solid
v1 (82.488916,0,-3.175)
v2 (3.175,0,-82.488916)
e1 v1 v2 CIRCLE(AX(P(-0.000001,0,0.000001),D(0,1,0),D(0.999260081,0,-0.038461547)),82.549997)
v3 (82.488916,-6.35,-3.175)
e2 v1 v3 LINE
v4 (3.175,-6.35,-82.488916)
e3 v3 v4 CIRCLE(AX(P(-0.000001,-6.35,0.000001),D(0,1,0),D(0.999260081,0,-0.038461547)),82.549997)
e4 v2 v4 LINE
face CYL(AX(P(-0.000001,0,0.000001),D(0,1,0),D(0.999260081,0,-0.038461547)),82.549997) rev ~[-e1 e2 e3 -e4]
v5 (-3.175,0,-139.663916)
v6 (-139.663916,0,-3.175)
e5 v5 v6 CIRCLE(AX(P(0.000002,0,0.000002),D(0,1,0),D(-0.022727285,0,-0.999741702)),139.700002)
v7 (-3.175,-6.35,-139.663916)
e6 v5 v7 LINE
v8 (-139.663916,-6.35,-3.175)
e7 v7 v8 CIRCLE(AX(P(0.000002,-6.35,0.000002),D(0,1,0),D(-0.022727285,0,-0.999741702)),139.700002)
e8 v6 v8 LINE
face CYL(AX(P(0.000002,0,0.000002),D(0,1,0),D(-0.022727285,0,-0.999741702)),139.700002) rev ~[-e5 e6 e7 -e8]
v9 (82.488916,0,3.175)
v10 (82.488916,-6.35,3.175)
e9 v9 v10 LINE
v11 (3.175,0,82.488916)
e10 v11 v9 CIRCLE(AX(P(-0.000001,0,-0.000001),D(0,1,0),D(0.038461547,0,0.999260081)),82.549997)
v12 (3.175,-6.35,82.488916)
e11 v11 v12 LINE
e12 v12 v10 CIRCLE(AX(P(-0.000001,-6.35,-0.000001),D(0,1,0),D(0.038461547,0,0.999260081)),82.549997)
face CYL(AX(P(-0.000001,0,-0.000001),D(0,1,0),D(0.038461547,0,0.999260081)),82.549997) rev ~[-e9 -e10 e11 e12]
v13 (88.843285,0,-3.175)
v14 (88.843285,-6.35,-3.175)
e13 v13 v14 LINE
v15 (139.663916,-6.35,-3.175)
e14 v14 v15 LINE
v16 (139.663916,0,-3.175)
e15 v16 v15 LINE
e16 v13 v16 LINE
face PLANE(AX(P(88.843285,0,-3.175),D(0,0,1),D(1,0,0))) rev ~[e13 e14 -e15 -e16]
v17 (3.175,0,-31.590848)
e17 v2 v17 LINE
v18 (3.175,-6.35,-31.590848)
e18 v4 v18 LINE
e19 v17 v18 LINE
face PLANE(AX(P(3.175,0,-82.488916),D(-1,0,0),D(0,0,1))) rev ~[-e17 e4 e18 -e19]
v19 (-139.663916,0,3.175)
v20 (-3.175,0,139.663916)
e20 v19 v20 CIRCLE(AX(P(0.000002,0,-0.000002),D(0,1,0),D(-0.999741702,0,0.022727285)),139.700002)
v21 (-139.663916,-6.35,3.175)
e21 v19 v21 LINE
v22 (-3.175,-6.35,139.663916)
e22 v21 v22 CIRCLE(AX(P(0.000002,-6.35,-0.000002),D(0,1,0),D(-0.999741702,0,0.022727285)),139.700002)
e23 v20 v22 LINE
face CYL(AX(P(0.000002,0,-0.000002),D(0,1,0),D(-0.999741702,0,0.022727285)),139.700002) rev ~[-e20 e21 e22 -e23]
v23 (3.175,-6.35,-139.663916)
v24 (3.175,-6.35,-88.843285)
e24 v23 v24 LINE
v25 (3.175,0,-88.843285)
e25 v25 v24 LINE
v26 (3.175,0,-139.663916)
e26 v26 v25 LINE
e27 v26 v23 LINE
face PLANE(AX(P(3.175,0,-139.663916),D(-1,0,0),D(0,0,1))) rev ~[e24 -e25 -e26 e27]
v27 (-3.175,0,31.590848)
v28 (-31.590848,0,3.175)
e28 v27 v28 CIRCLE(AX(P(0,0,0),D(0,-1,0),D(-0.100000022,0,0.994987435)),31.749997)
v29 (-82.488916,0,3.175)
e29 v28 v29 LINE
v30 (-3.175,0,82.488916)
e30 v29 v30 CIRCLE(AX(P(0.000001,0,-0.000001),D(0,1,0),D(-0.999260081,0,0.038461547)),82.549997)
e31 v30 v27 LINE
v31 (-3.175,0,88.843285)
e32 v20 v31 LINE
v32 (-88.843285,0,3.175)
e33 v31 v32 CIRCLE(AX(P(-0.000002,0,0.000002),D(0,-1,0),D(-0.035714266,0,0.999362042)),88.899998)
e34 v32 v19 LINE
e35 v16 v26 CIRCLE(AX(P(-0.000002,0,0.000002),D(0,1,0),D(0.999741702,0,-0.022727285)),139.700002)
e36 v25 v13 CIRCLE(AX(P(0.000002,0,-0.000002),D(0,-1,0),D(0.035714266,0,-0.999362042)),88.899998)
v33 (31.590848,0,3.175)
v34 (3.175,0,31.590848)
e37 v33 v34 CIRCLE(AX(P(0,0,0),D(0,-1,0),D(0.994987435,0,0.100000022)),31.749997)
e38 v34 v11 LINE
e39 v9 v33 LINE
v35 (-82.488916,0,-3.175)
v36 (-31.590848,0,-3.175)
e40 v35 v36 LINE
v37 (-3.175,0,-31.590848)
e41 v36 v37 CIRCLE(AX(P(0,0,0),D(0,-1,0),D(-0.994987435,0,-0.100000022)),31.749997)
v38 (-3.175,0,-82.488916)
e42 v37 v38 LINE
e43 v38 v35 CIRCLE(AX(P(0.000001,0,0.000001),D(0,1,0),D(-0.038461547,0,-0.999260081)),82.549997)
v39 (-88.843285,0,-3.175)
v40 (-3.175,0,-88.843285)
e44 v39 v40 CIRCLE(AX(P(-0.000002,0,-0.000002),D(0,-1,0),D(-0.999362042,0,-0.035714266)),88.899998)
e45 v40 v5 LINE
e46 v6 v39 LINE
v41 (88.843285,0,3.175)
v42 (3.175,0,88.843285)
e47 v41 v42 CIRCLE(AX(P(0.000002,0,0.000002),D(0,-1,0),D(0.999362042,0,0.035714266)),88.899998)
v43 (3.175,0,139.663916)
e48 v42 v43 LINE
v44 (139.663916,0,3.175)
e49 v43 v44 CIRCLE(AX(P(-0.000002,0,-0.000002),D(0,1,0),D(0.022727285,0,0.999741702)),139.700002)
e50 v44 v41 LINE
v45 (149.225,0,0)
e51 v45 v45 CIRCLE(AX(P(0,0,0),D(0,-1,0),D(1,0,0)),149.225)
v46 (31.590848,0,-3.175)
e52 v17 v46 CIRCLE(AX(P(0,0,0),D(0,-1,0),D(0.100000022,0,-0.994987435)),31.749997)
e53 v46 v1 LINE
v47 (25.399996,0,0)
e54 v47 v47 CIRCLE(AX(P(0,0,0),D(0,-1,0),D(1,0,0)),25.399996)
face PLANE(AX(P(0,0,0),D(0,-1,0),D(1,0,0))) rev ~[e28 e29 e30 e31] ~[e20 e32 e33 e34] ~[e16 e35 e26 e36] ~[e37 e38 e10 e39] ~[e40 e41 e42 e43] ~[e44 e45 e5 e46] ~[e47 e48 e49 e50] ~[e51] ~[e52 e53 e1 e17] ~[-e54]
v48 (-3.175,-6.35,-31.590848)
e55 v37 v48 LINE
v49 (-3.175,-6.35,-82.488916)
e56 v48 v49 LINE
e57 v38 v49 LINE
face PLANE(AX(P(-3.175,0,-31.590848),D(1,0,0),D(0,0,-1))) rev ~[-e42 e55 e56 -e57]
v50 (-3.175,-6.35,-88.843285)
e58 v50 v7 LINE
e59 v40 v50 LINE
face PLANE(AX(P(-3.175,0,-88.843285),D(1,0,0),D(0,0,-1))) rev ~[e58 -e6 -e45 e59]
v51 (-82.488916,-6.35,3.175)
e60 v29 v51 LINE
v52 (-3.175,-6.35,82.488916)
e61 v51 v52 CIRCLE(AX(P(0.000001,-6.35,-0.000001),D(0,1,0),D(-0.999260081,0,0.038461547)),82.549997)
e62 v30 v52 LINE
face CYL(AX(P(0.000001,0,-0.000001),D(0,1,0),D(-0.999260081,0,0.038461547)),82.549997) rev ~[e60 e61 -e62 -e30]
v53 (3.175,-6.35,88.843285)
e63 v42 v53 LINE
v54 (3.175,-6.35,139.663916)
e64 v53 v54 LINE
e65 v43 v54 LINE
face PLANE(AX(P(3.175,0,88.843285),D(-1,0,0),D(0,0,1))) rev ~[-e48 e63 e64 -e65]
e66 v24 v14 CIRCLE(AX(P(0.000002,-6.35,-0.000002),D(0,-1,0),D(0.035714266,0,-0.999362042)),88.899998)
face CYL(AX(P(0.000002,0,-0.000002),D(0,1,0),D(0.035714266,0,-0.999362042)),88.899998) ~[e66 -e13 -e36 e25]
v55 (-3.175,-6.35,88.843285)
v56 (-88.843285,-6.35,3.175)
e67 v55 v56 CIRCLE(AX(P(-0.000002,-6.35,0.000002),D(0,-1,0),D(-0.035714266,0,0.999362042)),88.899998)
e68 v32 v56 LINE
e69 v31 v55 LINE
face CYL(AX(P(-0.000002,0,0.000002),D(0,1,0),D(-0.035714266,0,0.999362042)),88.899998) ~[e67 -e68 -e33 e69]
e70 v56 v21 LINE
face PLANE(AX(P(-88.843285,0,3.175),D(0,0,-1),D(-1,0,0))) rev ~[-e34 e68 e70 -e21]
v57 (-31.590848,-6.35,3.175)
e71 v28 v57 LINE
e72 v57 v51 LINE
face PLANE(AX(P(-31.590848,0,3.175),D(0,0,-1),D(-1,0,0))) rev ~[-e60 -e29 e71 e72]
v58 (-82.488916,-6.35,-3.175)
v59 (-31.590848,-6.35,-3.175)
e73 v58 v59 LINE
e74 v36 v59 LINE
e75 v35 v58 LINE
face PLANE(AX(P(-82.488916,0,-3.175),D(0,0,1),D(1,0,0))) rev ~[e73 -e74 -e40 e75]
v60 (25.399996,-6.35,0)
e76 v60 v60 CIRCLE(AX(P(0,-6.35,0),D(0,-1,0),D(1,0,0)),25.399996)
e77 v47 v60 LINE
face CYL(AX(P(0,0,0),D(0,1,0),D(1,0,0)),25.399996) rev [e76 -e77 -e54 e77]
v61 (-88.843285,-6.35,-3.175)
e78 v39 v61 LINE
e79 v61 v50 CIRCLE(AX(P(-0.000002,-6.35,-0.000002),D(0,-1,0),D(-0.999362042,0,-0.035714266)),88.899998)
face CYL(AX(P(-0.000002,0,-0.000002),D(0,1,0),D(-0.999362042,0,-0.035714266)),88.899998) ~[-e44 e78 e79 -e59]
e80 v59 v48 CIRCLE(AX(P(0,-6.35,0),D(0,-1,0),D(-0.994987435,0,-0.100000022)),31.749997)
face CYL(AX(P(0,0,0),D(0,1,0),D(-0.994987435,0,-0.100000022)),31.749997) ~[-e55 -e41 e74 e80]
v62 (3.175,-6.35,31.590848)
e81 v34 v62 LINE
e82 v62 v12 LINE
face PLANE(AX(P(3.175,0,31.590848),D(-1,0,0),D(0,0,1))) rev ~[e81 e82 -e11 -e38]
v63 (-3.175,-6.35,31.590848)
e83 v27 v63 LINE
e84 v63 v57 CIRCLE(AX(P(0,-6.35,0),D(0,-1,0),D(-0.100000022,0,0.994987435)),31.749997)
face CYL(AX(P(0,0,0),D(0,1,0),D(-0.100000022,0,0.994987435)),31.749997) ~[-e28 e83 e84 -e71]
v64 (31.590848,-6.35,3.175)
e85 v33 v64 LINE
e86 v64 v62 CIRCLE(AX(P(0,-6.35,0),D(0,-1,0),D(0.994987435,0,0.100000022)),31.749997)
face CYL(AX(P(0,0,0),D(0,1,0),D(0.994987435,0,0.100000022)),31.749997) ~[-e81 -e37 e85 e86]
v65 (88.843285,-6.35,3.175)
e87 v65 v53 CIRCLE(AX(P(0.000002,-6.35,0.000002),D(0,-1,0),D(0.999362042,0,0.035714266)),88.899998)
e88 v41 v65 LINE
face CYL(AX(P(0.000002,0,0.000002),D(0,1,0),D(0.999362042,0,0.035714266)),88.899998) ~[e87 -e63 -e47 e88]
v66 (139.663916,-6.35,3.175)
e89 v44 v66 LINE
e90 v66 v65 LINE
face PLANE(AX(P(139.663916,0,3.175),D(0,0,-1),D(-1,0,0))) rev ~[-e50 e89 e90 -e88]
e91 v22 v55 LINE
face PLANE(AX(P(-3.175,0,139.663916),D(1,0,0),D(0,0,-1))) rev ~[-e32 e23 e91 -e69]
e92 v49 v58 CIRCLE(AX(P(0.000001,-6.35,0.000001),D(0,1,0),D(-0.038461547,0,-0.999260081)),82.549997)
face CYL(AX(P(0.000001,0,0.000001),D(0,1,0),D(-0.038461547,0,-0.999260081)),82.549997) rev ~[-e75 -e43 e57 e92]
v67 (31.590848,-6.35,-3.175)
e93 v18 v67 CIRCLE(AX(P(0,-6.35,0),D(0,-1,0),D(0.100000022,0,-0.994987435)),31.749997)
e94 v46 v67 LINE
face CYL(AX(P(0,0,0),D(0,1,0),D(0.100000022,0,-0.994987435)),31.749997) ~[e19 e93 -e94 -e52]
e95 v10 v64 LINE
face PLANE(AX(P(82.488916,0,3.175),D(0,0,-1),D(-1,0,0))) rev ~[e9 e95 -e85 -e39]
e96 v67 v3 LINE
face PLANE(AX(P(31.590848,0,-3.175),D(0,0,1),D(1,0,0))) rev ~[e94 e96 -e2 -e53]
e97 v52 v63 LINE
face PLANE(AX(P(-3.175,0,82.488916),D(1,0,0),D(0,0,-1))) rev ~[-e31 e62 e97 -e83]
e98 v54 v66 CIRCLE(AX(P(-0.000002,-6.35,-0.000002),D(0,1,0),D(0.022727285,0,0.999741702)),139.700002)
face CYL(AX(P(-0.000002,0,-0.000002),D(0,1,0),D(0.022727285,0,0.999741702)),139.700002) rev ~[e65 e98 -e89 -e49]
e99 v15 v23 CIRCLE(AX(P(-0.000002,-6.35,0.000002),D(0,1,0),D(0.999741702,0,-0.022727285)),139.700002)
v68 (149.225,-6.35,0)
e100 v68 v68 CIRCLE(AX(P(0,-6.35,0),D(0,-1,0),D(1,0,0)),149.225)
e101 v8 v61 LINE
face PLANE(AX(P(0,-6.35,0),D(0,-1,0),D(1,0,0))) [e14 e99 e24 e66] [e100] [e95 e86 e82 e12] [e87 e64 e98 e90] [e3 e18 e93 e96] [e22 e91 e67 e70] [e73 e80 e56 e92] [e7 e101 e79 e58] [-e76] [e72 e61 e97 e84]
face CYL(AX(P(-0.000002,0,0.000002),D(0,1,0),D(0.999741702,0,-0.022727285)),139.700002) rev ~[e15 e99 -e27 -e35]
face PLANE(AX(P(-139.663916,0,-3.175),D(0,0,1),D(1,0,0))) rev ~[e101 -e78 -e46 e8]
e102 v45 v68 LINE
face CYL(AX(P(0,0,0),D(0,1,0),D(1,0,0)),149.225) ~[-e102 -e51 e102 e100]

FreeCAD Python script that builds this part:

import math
import FreeCAD as App
import Part
import Sketcher

V = App.Vector
Q = App.Units.Quantity

doc = App.newDocument("Part")
body = doc.addObject("PartDesign::Body", "Body")

# Sketch on XZ plane
sketch1 = doc.addObject("Sketcher::SketchObject", "Sketch")
body.addObject(sketch1)
sketch1.AttachmentSupport = (doc.XZ_Plane, [""])
sketch1.MapMode = "FlatFace"
sketch1.addGeometry(Part.Circle(V(0, 0, 0), V(0, 0, 1), 149), False)
sketch1.addGeometry(Part.LineSegment(V(-3, -89, 0), V(-3, -140, 0)), False)
sketch1.addGeometry(Part.ArcOfCircle(Part.Circle(V(0, 0, 0), V(0, 0, 1), 140), math.radians(-179), math.radians(-91)), False)
sketch1.addGeometry(Part.LineSegment(V(-140, -3, 0), V(-89, -3, 0)), False)
sketch1.addGeometry(Part.ArcOfCircle(Part.Circle(V(0, 0, 0), V(0, 0, 1), 89), math.radians(-178), math.radians(-92)), False)
sketch1.addGeometry(Part.LineSegment(V(-3, -32, 0), V(-3, -82, 0)), False)
sketch1.addGeometry(Part.ArcOfCircle(Part.Circle(V(0, 0, 0), V(0, 0, 1), 83), math.radians(-178), math.radians(-92)), False)
sketch1.addGeometry(Part.LineSegment(V(-82, -3, 0), V(-32, -3, 0)), False)
sketch1.addGeometry(Part.ArcOfCircle(Part.Circle(V(0, 0, 0), V(0, 0, 1), 32), math.radians(-174), math.radians(-96)), False)
sketch1.addGeometry(Part.ArcOfCircle(Part.Circle(V(0, 0, 0), V(0, 0, 1), 140), math.radians(-89), math.radians(-1)), False)
sketch1.addGeometry(Part.LineSegment(V(3, -140, 0), V(3, -89, 0)), False)
sketch1.addGeometry(Part.ArcOfCircle(Part.Circle(V(0, 0, 0), V(0, 0, 1), 89), math.radians(-88), math.radians(-2)), False)
sketch1.addGeometry(Part.LineSegment(V(89, -3, 0), V(140, -3, 0)), False)
sketch1.addGeometry(Part.ArcOfCircle(Part.Circle(V(0, 0, 0), V(0, 0, 1), 83), math.radians(-88), math.radians(-2)), False)
sketch1.addGeometry(Part.LineSegment(V(3, -82, 0), V(3, -32, 0)), False)
sketch1.addGeometry(Part.ArcOfCircle(Part.Circle(V(0, 0, 0), V(0, 0, 1), 32), math.radians(-84), math.radians(-6)), False)
sketch1.addGeometry(Part.LineSegment(V(32, -3, 0), V(82, -3, 0)), False)
sketch1.addGeometry(Part.ArcOfCircle(Part.Circle(V(0, 0, 0), V(0, 0, 1), 32), math.radians(96), math.radians(174)), False)
sketch1.addGeometry(Part.LineSegment(V(-32, 3, 0), V(-82, 3, 0)), False)
sketch1.addGeometry(Part.ArcOfCircle(Part.Circle(V(0, 0, 0), V(0, 0, 1), 83), math.radians(92), math.radians(178)), False)
sketch1.addGeometry(Part.LineSegment(V(-3, 82, 0), V(-3, 32, 0)), False)
sketch1.addGeometry(Part.LineSegment(V(-89, 3, 0), V(-140, 3, 0)), False)
sketch1.addGeometry(Part.ArcOfCircle(Part.Circle(V(0, 0, 0), V(0, 0, 1), 140), math.radians(91), math.radians(179)), False)
sketch1.addGeometry(Part.LineSegment(V(-3, 140, 0), V(-3, 89, 0)), False)
sketch1.addGeometry(Part.ArcOfCircle(Part.Circle(V(0, 0, 0), V(0, 0, 1), 89), math.radians(92), math.radians(178)), False)
sketch1.addGeometry(Part.Circle(V(0, 0, 0), V(0, 0, 1), 25), False)
sketch1.addGeometry(Part.ArcOfCircle(Part.Circle(V(0, 0, 0), V(0, 0, 1), 32), math.radians(6), math.radians(84)), False)
sketch1.addGeometry(Part.LineSegment(V(3, 32, 0), V(3, 82, 0)), False)
sketch1.addGeometry(Part.ArcOfCircle(Part.Circle(V(0, 0, 0), V(0, 0, 1), 83), math.radians(2), math.radians(88)), False)
sketch1.addGeometry(Part.LineSegment(V(82, 3, 0), V(32, 3, 0)), False)
sketch1.addGeometry(Part.LineSegment(V(3, 89, 0), V(3, 140, 0)), False)
sketch1.addGeometry(Part.ArcOfCircle(Part.Circle(V(0, 0, 0), V(0, 0, 1), 140), math.radians(1), math.radians(89)), False)
sketch1.addGeometry(Part.LineSegment(V(140, 3, 0), V(89, 3, 0)), False)
sketch1.addGeometry(Part.ArcOfCircle(Part.Circle(V(0, 0, 0), V(0, 0, 1), 89), math.radians(2), math.radians(88)), False)
sketch1.addConstraint(Sketcher.Constraint("Coincident", 1, 2, 2, 2))
sketch1.addConstraint(Sketcher.Constraint("Coincident", 2, 1, 3, 1))
sketch1.addConstraint(Sketcher.Constraint("Coincident", 3, 2, 4, 1))
sketch1.addConstraint(Sketcher.Constraint("Coincident", 4, 2, 1, 1))
sketch1.addConstraint(Sketcher.Constraint("Coincident", 5, 2, 6, 2))
sketch1.addConstraint(Sketcher.Constraint("Coincident", 6, 1, 7, 1))
sketch1.addConstraint(Sketcher.Constraint("Coincident", 7, 2, 8, 1))
sketch1.addConstraint(Sketcher.Constraint("Coincident", 8, 2, 5, 1))
sketch1.addConstraint(Sketcher.Constraint("Coincident", 9, 1, 10, 1))
sketch1.addConstraint(Sketcher.Constraint("Coincident", 10, 2, 11, 1))
sketch1.addConstraint(Sketcher.Constraint("Coincident", 11, 2, 12, 1))
sketch1.addConstraint(Sketcher.Constraint("Coincident", 12, 2, 9, 2))
sketch1.addConstraint(Sketcher.Constraint("Coincident", 13, 1, 14, 1))
sketch1.addConstraint(Sketcher.Constraint("Coincident", 14, 2, 15, 1))
sketch1.addConstraint(Sketcher.Constraint("Coincident", 15, 2, 16, 1))
sketch1.addConstraint(Sketcher.Constraint("Coincident", 16, 2, 13, 2))
sketch1.addConstraint(Sketcher.Constraint("Coincident", 17, 2, 18, 1))
sketch1.addConstraint(Sketcher.Constraint("Coincident", 18, 2, 19, 2))
sketch1.addConstraint(Sketcher.Constraint("Coincident", 19, 1, 20, 1))
sketch1.addConstraint(Sketcher.Constraint("Coincident", 20, 2, 17, 1))
sketch1.addConstraint(Sketcher.Constraint("Coincident", 21, 2, 22, 2))
sketch1.addConstraint(Sketcher.Constraint("Coincident", 22, 1, 23, 1))
sketch1.addConstraint(Sketcher.Constraint("Coincident", 23, 2, 24, 1))
sketch1.addConstraint(Sketcher.Constraint("Coincident", 24, 2, 21, 1))
sketch1.addConstraint(Sketcher.Constraint("Coincident", 26, 2, 27, 1))
sketch1.addConstraint(Sketcher.Constraint("Coincident", 27, 2, 28, 2))
sketch1.addConstraint(Sketcher.Constraint("Coincident", 28, 1, 29, 1))
sketch1.addConstraint(Sketcher.Constraint("Coincident", 29, 2, 26, 1))
sketch1.addConstraint(Sketcher.Constraint("Coincident", 30, 2, 31, 2))
sketch1.addConstraint(Sketcher.Constraint("Coincident", 31, 1, 32, 1))
sketch1.addConstraint(Sketcher.Constraint("Coincident", 32, 2, 33, 1))
sketch1.addConstraint(Sketcher.Constraint("Coincident", 33, 2, 30, 1))
sketch1.addConstraint(Sketcher.Constraint("Vertical", 1))
sketch1.addConstraint(Sketcher.Constraint("Horizontal", 3))
sketch1.addConstraint(Sketcher.Constraint("Vertical", 5))
sketch1.addConstraint(Sketcher.Constraint("Horizontal", 7))
sketch1.addConstraint(Sketcher.Constraint("Vertical", 10))
sketch1.addConstraint(Sketcher.Constraint("Horizontal", 12))
sketch1.addConstraint(Sketcher.Constraint("Vertical", 14))
sketch1.addConstraint(Sketcher.Constraint("Horizontal", 16))
sketch1.addConstraint(Sketcher.Constraint("Horizontal", 18))
sketch1.addConstraint(Sketcher.Constraint("Vertical", 20))
sketch1.addConstraint(Sketcher.Constraint("Horizontal", 21))
sketch1.addConstraint(Sketcher.Constraint("Vertical", 23))
sketch1.addConstraint(Sketcher.Constraint("Vertical", 27))
sketch1.addConstraint(Sketcher.Constraint("Horizontal", 29))
sketch1.addConstraint(Sketcher.Constraint("Vertical", 30))
sketch1.addConstraint(Sketcher.Constraint("Horizontal", 32))
sketch1.addConstraint(Sketcher.Constraint("Coincident", 0, 3, -1, 1))
sketch1.addConstraint(Sketcher.Constraint("Coincident", 2, 3, -1, 1))
sketch1.addConstraint(Sketcher.Constraint("Coincident", 4, 3, -1, 1))
sketch1.addConstraint(Sketcher.Constraint("Coincident", 6, 3, -1, 1))
sketch1.addConstraint(Sketcher.Constraint("Coincident", 8, 3, -1, 1))
sketch1.addConstraint(Sketcher.Constraint("Coincident", 9, 3, -1, 1))
sketch1.addConstraint(Sketcher.Constraint("Coincident", 11, 3, -1, 1))
sketch1.addConstraint(Sketcher.Constraint("Coincident", 13, 3, -1, 1))
sketch1.addConstraint(Sketcher.Constraint("Coincident", 15, 3, -1, 1))
sketch1.addConstraint(Sketcher.Constraint("Coincident", 17, 3, -1, 1))
sketch1.addConstraint(Sketcher.Constraint("Coincident", 19, 3, -1, 1))
sketch1.addConstraint(Sketcher.Constraint("Coincident", 22, 3, -1, 1))
sketch1.addConstraint(Sketcher.Constraint("Coincident", 24, 3, -1, 1))
sketch1.addConstraint(Sketcher.Constraint("Coincident", 25, 3, -1, 1))
sketch1.addConstraint(Sketcher.Constraint("Coincident", 26, 3, -1, 1))
sketch1.addConstraint(Sketcher.Constraint("Coincident", 28, 3, -1, 1))
sketch1.addConstraint(Sketcher.Constraint("Coincident", 31, 3, -1, 1))
sketch1.addConstraint(Sketcher.Constraint("Coincident", 33, 3, -1, 1))
sketch1.addConstraint(Sketcher.Constraint("Equal", 2, 9))
sketch1.addConstraint(Sketcher.Constraint("Equal", 4, 11))
sketch1.addConstraint(Sketcher.Constraint("Equal", 6, 13))
sketch1.addConstraint(Sketcher.Constraint("Equal", 8, 15))
sketch1.addConstraint(Sketcher.Constraint("Equal", 15, 17))
sketch1.addConstraint(Sketcher.Constraint("Equal", 13, 19))
sketch1.addConstraint(Sketcher.Constraint("Equal", 9, 22))
sketch1.addConstraint(Sketcher.Constraint("Equal", 11, 24))
sketch1.addConstraint(Sketcher.Constraint("Equal", 17, 26))
sketch1.addConstraint(Sketcher.Constraint("Equal", 19, 28))
sketch1.addConstraint(Sketcher.Constraint("Equal", 22, 31))
sketch1.addConstraint(Sketcher.Constraint("Equal", 24, 33))
sketch1.addConstraint(Sketcher.Constraint("Horizontal", 3, 2, 6, 1))
sketch1.addConstraint(Sketcher.Constraint("Horizontal", 1, 2, 9, 1))
sketch1.addConstraint(Sketcher.Constraint("Horizontal", 7, 2, 11, 2))
sketch1.addConstraint(Sketcher.Constraint("Horizontal", 5, 2, 13, 1))
sketch1.addConstraint(Sketcher.Constraint("Horizontal", 12, 2, 15, 2))
sketch1.addConstraint(Sketcher.Constraint("Horizontal", 18, 2, 21, 2))
sketch1.addConstraint(Sketcher.Constraint("Horizontal", 20, 2, 26, 2))
sketch1.addConstraint(Sketcher.Constraint("Horizontal", 24, 2, 28, 1))
sketch1.addConstraint(Sketcher.Constraint("Horizontal", 22, 1, 30, 2))
sketch1.addConstraint(Sketcher.Constraint("Horizontal", 29, 2, 31, 1))
sketch1.addConstraint(Sketcher.Constraint("Vertical", 4, 2, 5, 2))
sketch1.addConstraint(Sketcher.Constraint("Vertical", 7, 2, 17, 2))
sketch1.addConstraint(Sketcher.Constraint("Vertical", 8, 2, 19, 1))
sketch1.addConstraint(Sketcher.Constraint("Vertical", 20, 2, 22, 1))
sketch1.addConstraint(Sketcher.Constraint("Equal", 32, 1))
sketch1.addConstraint(Sketcher.Constraint("Radius", 2, Q("5.5000001 in")))
sketch1.addConstraint(Sketcher.Constraint("Radius", 4, Q("3.4999999 in")))
sketch1.addConstraint(Sketcher.Constraint("Diameter", 0, Q("11.75 in")))
sketch1.addConstraint(Sketcher.Constraint("Radius", 6, Q("3.2499999 in")))
sketch1.addConstraint(Sketcher.Constraint("Radius", 8, Q("1.2499999 in")))
sketch1.addConstraint(Sketcher.Constraint("DistanceX", 1, 2, 9, 1, Q("0.25 in")))
sketch1.addConstraint(Sketcher.Constraint("Diameter", 25, 50.799992))
pad1 = doc.addObject("PartDesign::Pad", "Pad")
body.addObject(pad1)
pad1.Profile = sketch1
pad1.Length = Q("0.25 in")

doc.recompute()
